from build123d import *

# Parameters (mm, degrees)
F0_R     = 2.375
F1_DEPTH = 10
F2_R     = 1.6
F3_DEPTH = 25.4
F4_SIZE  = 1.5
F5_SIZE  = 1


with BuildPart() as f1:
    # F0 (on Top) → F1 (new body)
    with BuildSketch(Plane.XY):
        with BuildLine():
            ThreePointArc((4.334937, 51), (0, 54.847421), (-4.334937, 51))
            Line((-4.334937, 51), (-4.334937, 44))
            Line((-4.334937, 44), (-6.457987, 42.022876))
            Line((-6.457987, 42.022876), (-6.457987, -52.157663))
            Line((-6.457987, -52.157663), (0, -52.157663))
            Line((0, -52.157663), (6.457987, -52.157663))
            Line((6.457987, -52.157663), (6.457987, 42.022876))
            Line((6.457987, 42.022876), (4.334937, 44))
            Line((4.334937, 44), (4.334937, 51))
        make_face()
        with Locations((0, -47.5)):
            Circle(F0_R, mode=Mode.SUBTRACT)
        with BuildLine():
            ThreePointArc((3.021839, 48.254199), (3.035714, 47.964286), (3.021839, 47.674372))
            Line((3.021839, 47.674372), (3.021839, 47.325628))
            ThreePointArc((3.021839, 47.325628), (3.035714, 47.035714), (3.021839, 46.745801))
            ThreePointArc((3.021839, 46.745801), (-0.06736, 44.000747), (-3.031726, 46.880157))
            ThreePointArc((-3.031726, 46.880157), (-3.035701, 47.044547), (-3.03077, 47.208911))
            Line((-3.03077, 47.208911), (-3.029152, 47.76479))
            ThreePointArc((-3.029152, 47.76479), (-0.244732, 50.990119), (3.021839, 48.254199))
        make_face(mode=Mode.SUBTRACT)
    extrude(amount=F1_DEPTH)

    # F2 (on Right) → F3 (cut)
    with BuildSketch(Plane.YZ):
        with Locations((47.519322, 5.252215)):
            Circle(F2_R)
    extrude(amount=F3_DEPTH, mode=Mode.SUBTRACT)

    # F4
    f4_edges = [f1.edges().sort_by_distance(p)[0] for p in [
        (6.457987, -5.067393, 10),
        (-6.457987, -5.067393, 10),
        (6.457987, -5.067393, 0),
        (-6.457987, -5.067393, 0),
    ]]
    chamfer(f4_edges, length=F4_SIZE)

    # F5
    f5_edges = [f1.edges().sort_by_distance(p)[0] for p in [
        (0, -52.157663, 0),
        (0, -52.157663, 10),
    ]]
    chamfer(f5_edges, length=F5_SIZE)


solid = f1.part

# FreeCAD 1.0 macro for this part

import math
import FreeCAD as App
import Part
import Sketcher

V = App.Vector


def edges_at(feature, points):
    """Names of the edges that pass closest to the given points."""
    edges = feature.Shape.Edges
    near = lambda p: min(range(len(edges)), key=lambda i: edges[i].distToShape(Part.Vertex(*p))[0])
    return sorted({f"Edge{near(p) + 1}" for p in points})

doc = App.newDocument("Part")
body = doc.addObject("PartDesign::Body", "Body")

# Sketch on XY plane
sketch1 = body.newObject("Sketcher::SketchObject", "Sketch")
sketch1.AttachmentSupport = (doc.getObject("XY_Plane"), [""])
sketch1.MapMode = "FlatFace"
sketch1.addGeometry([
    Part.ArcOfCircle(Part.Circle(V(0, 50.481597, 0), V(0, 0, 1), 4.365824), math.radians(6.819459), math.radians(173.180541)),  # 0
    Part.LineSegment(V(-4.334937, 51, 0), V(-4.334937, 44, 0)),  # 1
    Part.LineSegment(V(-4.334937, 44, 0), V(-6.457987, 42.022876, 0)),  # 2
    Part.LineSegment(V(-6.457987, 42.022876, 0), V(-6.457987, -52.157663, 0)),  # 3
    Part.LineSegment(V(-6.457987, -52.157663, 0), V(6.457987, -52.157663, 0)),  # 4
    Part.LineSegment(V(6.457987, -52.157663, 0), V(6.457987, 42.022876, 0)),  # 5
    Part.LineSegment(V(6.457987, 42.022876, 0), V(4.334937, 44, 0)),  # 6
    Part.LineSegment(V(4.334937, 44, 0), V(4.334937, 51, 0)),  # 7
    Part.Circle(V(0, -47.5, 0), V(0, 0, 1), 2.375),  # 8
    Part.ArcOfCircle(Part.Circle(V(0, 47.964286, 0), V(0, 0, 1), 3.035714), math.radians(5.480147), math.radians(183.767979)),  # 9
    Part.ArcOfCircle(Part.Circle(V(-0.000046, 47.964286, 0), V(0, 0, 1), 3.03576), math.radians(-5.480068), math.radians(5.480068)),  # 10
    Part.LineSegment(V(3.021839, 47.674372, 0), V(3.021839, 47.325628, 0)),  # 11
    Part.ArcOfCircle(Part.Circle(V(-0.000046, 47.035714, 0), V(0, 0, 1), 3.03576), math.radians(-5.480068), math.radians(5.480068)),  # 12
    Part.ArcOfCircle(Part.Circle(V(0, 47.035714, 0), V(0, 0, 1), 3.035714), math.radians(-177.062751), math.radians(-5.480137)),  # 13
    Part.ArcOfCircle(Part.Circle(V(0.000412, 47.035718, 0), V(0, 0, 1), 3.036126), math.radians(176.729842), math.radians(182.936932)),  # 14
    Part.LineSegment(V(-3.03077, 47.208911, 0), V(-3.029152, 47.76479, 0)),  # 15
], False)
sketch1.addConstraint([
    Sketcher.Constraint("Coincident", 0, 2, 1, 1),
    Sketcher.Constraint("Coincident", 1, 2, 2, 1),
    Sketcher.Constraint("Coincident", 2, 2, 3, 1),
    Sketcher.Constraint("Coincident", 3, 2, 4, 1),
    Sketcher.Constraint("Coincident", 4, 2, 5, 1),
    Sketcher.Constraint("Coincident", 5, 2, 6, 1),
    Sketcher.Constraint("Coincident", 6, 2, 7, 1),
    Sketcher.Constraint("Coincident", 7, 2, 0, 1),
    Sketcher.Constraint("Coincident", 9, 1, 10, 2),
    Sketcher.Constraint("Coincident", 10, 1, 11, 1),
    Sketcher.Constraint("Coincident", 11, 2, 12, 2),
    Sketcher.Constraint("Coincident", 12, 1, 13, 2),
    Sketcher.Constraint("Coincident", 13, 1, 14, 2),
    Sketcher.Constraint("Coincident", 14, 1, 15, 1),
    Sketcher.Constraint("Coincident", 15, 2, 9, 2),
    Sketcher.Constraint("Vertical", 1),
    Sketcher.Constraint("Vertical", 3),
    Sketcher.Constraint("Horizontal", 4),
    Sketcher.Constraint("Vertical", 5),
    Sketcher.Constraint("Vertical", 7),
    Sketcher.Constraint("Vertical", 11),
    Sketcher.Constraint("PointOnObject", 0, 3, -2),
    Sketcher.Constraint("PointOnObject", 8, 3, -2),
    Sketcher.Constraint("PointOnObject", 9, 3, -2),
    Sketcher.Constraint("PointOnObject", 13, 3, -2),
    Sketcher.Constraint("Diameter", 8, 4.75),
    Sketcher.Constraint("DistanceY", 1, 2, 1, 1, 7.0),
    Sketcher.Constraint("DistanceY", 7, 1, 7, 2, 7.0),
    Sketcher.Constraint("DistanceY", -1, 1, 0, 2, 51.0),
    Sketcher.Constraint("DistanceY", -1, 1, 6, 2, 44.0),
    Sketcher.Constraint("DistanceY", 8, 3, -1, 1, 47.5),
    Sketcher.Constraint("Radius", 10, 3.03576),
    Sketcher.Constraint("Radius", 12, 3.03576),
    Sketcher.Constraint("Radius", 0, 4.365824),
    Sketcher.Constraint("Radius", 9, 3.035714),
    Sketcher.Constraint("Radius", 13, 3.035714),
    Sketcher.Constraint("Radius", 14, 3.036126),
    Sketcher.Constraint("DistanceY", 3, 2, 3, 1, 94.180539),
    Sketcher.Constraint("DistanceY", 5, 1, 5, 2, 94.180539),
    Sketcher.Constraint("DistanceY", -1, 1, 9, 1, 48.254199),
    Sketcher.Constraint("DistanceY", -1, 1, 12, 1, 46.745801),
    Sketcher.Constraint("DistanceX", 2, 2, 14, 3, 6.458399),
    Sketcher.Constraint("Distance", 15, 0.555881),
    Sketcher.Constraint("DistanceX", 4, 1, 4, 2, 12.915974),
    Sketcher.Constraint("DistanceY", 11, 2, 11, 1, 0.348744),
    Sketcher.Constraint("DistanceY", -1, 1, 14, 3, 47.035718),
    Sketcher.Constraint("DistanceX", -1, 1, 9, 1, 3.021839),
    Sketcher.Constraint("DistanceX", -1, 1, 10, 1, 3.021839),
    Sketcher.Constraint("DistanceY", -1, 1, 11, 2, 47.325628),
    Sketcher.Constraint("DistanceX", -1, 1, 12, 1, 3.021839),
    Sketcher.Constraint("DistanceX", 14, 1, -1, 1, 3.03077),
    Sketcher.Constraint("DistanceY", 9, 3, 0, 3, 2.517311),
    Sketcher.Constraint("DistanceY", 2, 2, 12, 3, 5.012839),
    Sketcher.Constraint("DistanceX", 13, 1, 12, 3, 3.03168),
])
pad1 = body.newObject("PartDesign::Pad", "Pad")
pad1.Profile = sketch1
pad1.Length = 10

# Sketch on YZ plane
sketch2 = body.newObject("Sketcher::SketchObject", "Sketch001")
sketch2.AttachmentSupport = (doc.getObject("YZ_Plane"), [""])
sketch2.MapMode = "FlatFace"
sketch2.addGeometry(Part.Circle(V(47.5, 5.3, 0), V(0, 0, 1), 1.6), False)
sketch2.addConstraint([
    Sketcher.Constraint("Diameter", 0, 3.2),
    Sketcher.Constraint("DistanceX", -1, 1, 0, 3, 47.519322),
    Sketcher.Constraint("DistanceY", -1, 1, 0, 3, 5.252215),
])
pocket1 = body.newObject("PartDesign::Pocket", "Pocket")
pocket1.Profile = sketch2
pocket1.Length = 25.4
pocket1.Reversed = True
doc.recompute()

chamfer = body.newObject("PartDesign::Chamfer", "Chamfer")
chamfer.Base = (pocket1, edges_at(pocket1, [
    (6.458, -5.067, 10),
    (-6.458, -5.067, 10),
    (6.458, -5.067, 0),
    (-6.458, -5.067, 0),
]))
chamfer.Size = 1.5
doc.recompute()

chamfer2 = body.newObject("PartDesign::Chamfer", "Chamfer001")
chamfer2.Base = (chamfer, edges_at(chamfer, [(0, -52.158, 0), (0, -52.158, 10)]))
chamfer2.Size = 1

doc.recompute()
